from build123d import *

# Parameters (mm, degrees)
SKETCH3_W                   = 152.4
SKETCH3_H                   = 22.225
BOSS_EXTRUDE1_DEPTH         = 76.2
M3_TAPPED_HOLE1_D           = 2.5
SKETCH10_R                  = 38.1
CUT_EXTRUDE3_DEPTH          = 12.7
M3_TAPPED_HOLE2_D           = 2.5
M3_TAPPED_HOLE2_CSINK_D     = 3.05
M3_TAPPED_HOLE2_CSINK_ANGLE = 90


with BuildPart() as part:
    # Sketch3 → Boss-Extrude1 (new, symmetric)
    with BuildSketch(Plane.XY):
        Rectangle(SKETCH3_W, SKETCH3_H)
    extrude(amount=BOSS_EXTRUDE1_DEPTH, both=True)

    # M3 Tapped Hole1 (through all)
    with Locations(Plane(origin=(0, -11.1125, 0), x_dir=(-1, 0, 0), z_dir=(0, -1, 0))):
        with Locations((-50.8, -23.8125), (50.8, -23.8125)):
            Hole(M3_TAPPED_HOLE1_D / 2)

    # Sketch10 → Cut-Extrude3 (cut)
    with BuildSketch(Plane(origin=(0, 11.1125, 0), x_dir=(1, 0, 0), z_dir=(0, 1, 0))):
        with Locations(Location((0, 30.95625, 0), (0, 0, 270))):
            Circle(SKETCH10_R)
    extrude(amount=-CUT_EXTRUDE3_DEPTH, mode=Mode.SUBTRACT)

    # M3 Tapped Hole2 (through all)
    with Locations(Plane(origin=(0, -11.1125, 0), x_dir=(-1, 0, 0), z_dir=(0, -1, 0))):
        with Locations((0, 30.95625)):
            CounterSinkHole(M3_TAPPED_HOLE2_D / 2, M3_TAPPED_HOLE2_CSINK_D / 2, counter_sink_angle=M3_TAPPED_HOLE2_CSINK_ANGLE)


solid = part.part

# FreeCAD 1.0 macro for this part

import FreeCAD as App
import Part
import Sketcher
Q = App.Units.Quantity


def add_polygon(sketch, points):
    """Adds a closed chain of lines whose ends are joined by coincident constraints."""
    first, n = sketch.GeometryCount, len(points)
    for a, b in zip(points, points[1:] + points[:1]):
        sketch.addGeometry(Part.LineSegment(App.Vector(*a, 0), App.Vector(*b, 0)), False)
    for i in range(n):
        sketch.addConstraint(Sketcher.Constraint("Coincident", first + i, 2, first + (i + 1) % n, 1))

doc = App.newDocument("Part")
body = doc.addObject("PartDesign::Body", "Body")

# Sketch on XY plane
sketch1 = body.newObject("Sketcher::SketchObject", "Sketch")
sketch1.AttachmentSupport = (doc.getObject("XY_Plane"), [""])
sketch1.MapMode = "FlatFace"
add_polygon(sketch1, [(-76, 11), (-76, -11), (76, -11), (76, 11)])  # lines 0-3
sketch1.addConstraint(Sketcher.Constraint("Vertical", 0))
sketch1.addConstraint(Sketcher.Constraint("Horizontal", 1))
sketch1.addConstraint(Sketcher.Constraint("Vertical", 2))
sketch1.addConstraint(Sketcher.Constraint("Horizontal", 3))
sketch1.addConstraint(Sketcher.Constraint("Symmetric", 0, 2, 2, 2, -1, 1))
sketch1.addConstraint(Sketcher.Constraint("DistanceX", 1, 1, 1, 2, Q("6 in")))
sketch1.addConstraint(Sketcher.Constraint("DistanceY", 0, 2, 0, 1, Q("0.875 in")))
pad1 = body.newObject("PartDesign::Pad", "Pad")
pad1.Profile = sketch1
pad1.Length = Q("6 in")
pad1.Midplane = True

# Sketch on XZ plane
sketch2 = body.newObject("Sketcher::SketchObject", "Sketch001")
sketch2.AttachmentSupport = (doc.getObject("XZ_Plane"), [""])
sketch2.MapMode = "FlatFace"
sketch2.AttachmentOffset = App.Placement(App.Vector(0, 0, 0.4375 * 25.4), App.Rotation())
sketch2.addGeometry(Part.Circle(App.Vector(50.8, 23.8, 0), App.Vector(0, 0, 1), 1.2), False)
sketch2.addGeometry(Part.Circle(App.Vector(-50.8, 23.8, 0), App.Vector(0, 0, 1), 1.2), False)
sketch2.addConstraint(Sketcher.Constraint("Equal", 0, 1))
sketch2.addConstraint(Sketcher.Constraint("Symmetric", 0, 3, 1, 3, -2))
sketch2.addConstraint(Sketcher.Constraint("DistanceX", -1, 1, 0, 3, Q("2 in")))
sketch2.addConstraint(Sketcher.Constraint("Diameter", 0, 2.5))
sketch2.addConstraint(Sketcher.Constraint("DistanceY", -1, 1, 0, 3, Q("0.9375 in")))
doc.recompute()
hole = body.newObject("PartDesign::Hole", "Hole")
hole.Profile = sketch2
hole.ThreadType = "None"
hole.Diameter = 2.5
hole.DepthType = "ThroughAll"

# Sketch on XZ plane
sketch3 = body.newObject("Sketcher::SketchObject", "Sketch002")
sketch3.AttachmentSupport = (doc.getObject("XZ_Plane"), [""])
sketch3.MapMode = "FlatFace"
sketch3.AttachmentOffset = App.Placement(App.Vector(0, 0, -0.4375 * 25.4), App.Rotation())
sketch3.addGeometry(Part.Circle(App.Vector(0, -31, 0), App.Vector(0, 0, 1), 38), False)
sketch3.addConstraint(Sketcher.Constraint("PointOnObject", 0, 3, -2))
sketch3.addConstraint(Sketcher.Constraint("Diameter", 0, Q("3 in")))
sketch3.addConstraint(Sketcher.Constraint("DistanceY", 0, 3, -1, 1, Q("1.21875 in")))
pocket1 = body.newObject("PartDesign::Pocket", "Pocket")
pocket1.Profile = sketch3
pocket1.Length = Q("0.5 in")
pocket1.Reversed = True

# Sketch on XZ plane
sketch4 = body.newObject("Sketcher::SketchObject", "Sketch003")
sketch4.AttachmentSupport = (doc.getObject("XZ_Plane"), [""])
sketch4.MapMode = "FlatFace"
sketch4.AttachmentOffset = App.Placement(App.Vector(0, 0, 0.4375 * 25.4), App.Rotation())
sketch4.addGeometry(Part.Circle(App.Vector(0, -31, 0), App.Vector(0, 0, 1), 1.2), False)
sketch4.addConstraint(Sketcher.Constraint("PointOnObject", 0, 3, -2))
sketch4.addConstraint(Sketcher.Constraint("Diameter", 0, 2.5))
sketch4.addConstraint(Sketcher.Constraint("DistanceY", 0, 3, -1, 1, Q("1.21875 in")))
doc.recompute()
hole2 = body.newObject("PartDesign::Hole", "Hole001")
hole2.Profile = sketch4
hole2.ThreadType = "None"
hole2.Diameter = 2.5
hole2.DepthType = "ThroughAll"
hole2.HoleCutType = "Countersink"
hole2.HoleCutDiameter = 3.05
hole2.HoleCutCountersinkAngle = 90

doc.recompute()
